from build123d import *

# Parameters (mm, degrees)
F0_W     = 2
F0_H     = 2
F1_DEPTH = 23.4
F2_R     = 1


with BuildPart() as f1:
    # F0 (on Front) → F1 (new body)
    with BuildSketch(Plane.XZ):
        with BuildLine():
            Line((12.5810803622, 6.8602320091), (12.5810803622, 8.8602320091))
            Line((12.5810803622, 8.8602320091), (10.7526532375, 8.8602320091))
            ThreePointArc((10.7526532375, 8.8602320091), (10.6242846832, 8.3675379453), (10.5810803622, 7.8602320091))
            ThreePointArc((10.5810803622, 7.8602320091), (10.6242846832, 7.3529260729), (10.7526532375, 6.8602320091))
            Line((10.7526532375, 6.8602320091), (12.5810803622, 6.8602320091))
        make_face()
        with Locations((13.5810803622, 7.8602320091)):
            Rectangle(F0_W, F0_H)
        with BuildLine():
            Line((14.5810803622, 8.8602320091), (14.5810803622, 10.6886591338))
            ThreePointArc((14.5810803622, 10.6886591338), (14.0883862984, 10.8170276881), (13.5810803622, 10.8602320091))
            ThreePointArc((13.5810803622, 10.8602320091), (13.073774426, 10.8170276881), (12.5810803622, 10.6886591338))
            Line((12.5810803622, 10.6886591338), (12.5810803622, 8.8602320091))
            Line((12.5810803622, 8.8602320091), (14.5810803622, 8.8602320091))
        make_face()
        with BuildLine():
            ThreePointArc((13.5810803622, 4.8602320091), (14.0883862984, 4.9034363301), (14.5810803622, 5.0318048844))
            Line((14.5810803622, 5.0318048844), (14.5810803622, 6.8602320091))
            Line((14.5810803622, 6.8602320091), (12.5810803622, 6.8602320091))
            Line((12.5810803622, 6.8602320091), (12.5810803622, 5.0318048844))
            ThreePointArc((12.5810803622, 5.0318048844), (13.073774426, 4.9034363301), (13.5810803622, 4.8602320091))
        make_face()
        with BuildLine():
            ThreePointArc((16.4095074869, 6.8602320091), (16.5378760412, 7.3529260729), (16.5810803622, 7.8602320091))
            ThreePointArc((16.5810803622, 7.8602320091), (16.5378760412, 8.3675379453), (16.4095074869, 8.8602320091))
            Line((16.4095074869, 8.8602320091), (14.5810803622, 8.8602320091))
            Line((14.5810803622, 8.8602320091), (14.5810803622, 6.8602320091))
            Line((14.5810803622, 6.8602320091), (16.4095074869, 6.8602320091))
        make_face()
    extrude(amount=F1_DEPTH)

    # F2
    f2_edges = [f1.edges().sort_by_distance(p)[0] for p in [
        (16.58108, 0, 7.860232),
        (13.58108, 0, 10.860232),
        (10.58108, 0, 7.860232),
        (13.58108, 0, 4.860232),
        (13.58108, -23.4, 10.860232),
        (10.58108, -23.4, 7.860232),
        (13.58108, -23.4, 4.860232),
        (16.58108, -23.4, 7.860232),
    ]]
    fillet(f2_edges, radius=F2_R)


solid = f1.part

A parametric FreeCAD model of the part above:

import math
import FreeCAD as App
import Part
import Sketcher
Q = App.Units.Quantity


def edges_at(feature, points):
    """Names of the edges that pass closest to the given points."""
    edges = feature.Shape.Edges
    near = lambda p: min(range(len(edges)), key=lambda i: edges[i].distToShape(Part.Vertex(*p))[0])
    return sorted({f"Edge{near(p) + 1}" for p in points})

doc = App.newDocument("Part")
body = doc.addObject("PartDesign::Body", "Body")

sketch1 = body.newObject("Sketcher::SketchObject", "Sketch")
sketch1.AttachmentSupport = (doc.getObject("XZ_Plane"), [""])
sketch1.MapMode = "FlatFace"
sketch1.addGeometry(Part.ArcOfCircle(Part.Circle(App.Vector(13.6, 7.9, 0), App.Vector(0, 0, 1), 3), math.radians(160.53), math.radians(180)), False)
sketch1.addGeometry(Part.ArcOfCircle(Part.Circle(App.Vector(13.6, 7.9, 0), App.Vector(0, 0, 1), 3), math.radians(180), math.radians(199.47)), False)
sketch1.addGeometry(Part.LineSegment(App.Vector(10.8, 6.9, 0), App.Vector(12.6, 6.9, 0)), False)
sketch1.addGeometry(Part.LineSegment(App.Vector(12.6, 6.9, 0), App.Vector(12.6, 5, 0)), False)
sketch1.addGeometry(Part.ArcOfCircle(Part.Circle(App.Vector(13.6, 7.9, 0), App.Vector(0, 0, 1), 3), math.radians(-109.47), math.radians(-90)), False)
sketch1.addGeometry(Part.ArcOfCircle(Part.Circle(App.Vector(13.6, 7.9, 0), App.Vector(0, 0, 1), 3), math.radians(-90), math.radians(-70.53)), False)
sketch1.addGeometry(Part.LineSegment(App.Vector(14.6, 5, 0), App.Vector(14.6, 6.9, 0)), False)
sketch1.addGeometry(Part.LineSegment(App.Vector(14.6, 6.9, 0), App.Vector(16.4, 6.9, 0)), False)
sketch1.addGeometry(Part.ArcOfCircle(Part.Circle(App.Vector(13.6, 7.9, 0), App.Vector(0, 0, 1), 3), math.radians(-19.47), math.radians(0)), False)
sketch1.addGeometry(Part.ArcOfCircle(Part.Circle(App.Vector(13.6, 7.9, 0), App.Vector(0, 0, 1), 3), math.radians(0), math.radians(19.47)), False)
sketch1.addGeometry(Part.LineSegment(App.Vector(16.4, 8.9, 0), App.Vector(14.6, 8.9, 0)), False)
sketch1.addGeometry(Part.LineSegment(App.Vector(14.6, 8.9, 0), App.Vector(14.6, 10.7, 0)), False)
sketch1.addGeometry(Part.ArcOfCircle(Part.Circle(App.Vector(13.6, 7.9, 0), App.Vector(0, 0, 1), 3), math.radians(70.53), math.radians(90)), False)
sketch1.addGeometry(Part.ArcOfCircle(Part.Circle(App.Vector(13.6, 7.9, 0), App.Vector(0, 0, 1), 3), math.radians(90), math.radians(109.47)), False)
sketch1.addGeometry(Part.LineSegment(App.Vector(12.6, 10.7, 0), App.Vector(12.6, 8.9, 0)), False)
sketch1.addGeometry(Part.LineSegment(App.Vector(12.6, 8.9, 0), App.Vector(10.8, 8.9, 0)), False)
sketch1.addConstraint(Sketcher.Constraint("Tangent", 0, 2, 1, 1))
sketch1.addConstraint(Sketcher.Constraint("Coincident", 1, 2, 2, 1))
sketch1.addConstraint(Sketcher.Constraint("Coincident", 2, 2, 3, 1))
sketch1.addConstraint(Sketcher.Constraint("Coincident", 3, 2, 4, 1))
sketch1.addConstraint(Sketcher.Constraint("Tangent", 4, 2, 5, 1))
sketch1.addConstraint(Sketcher.Constraint("Coincident", 5, 2, 6, 1))
sketch1.addConstraint(Sketcher.Constraint("Coincident", 6, 2, 7, 1))
sketch1.addConstraint(Sketcher.Constraint("Coincident", 7, 2, 8, 1))
sketch1.addConstraint(Sketcher.Constraint("Tangent", 8, 2, 9, 1))
sketch1.addConstraint(Sketcher.Constraint("Coincident", 9, 2, 10, 1))
sketch1.addConstraint(Sketcher.Constraint("Coincident", 10, 2, 11, 1))
sketch1.addConstraint(Sketcher.Constraint("Coincident", 11, 2, 12, 1))
sketch1.addConstraint(Sketcher.Constraint("Tangent", 12, 2, 13, 1))
sketch1.addConstraint(Sketcher.Constraint("Coincident", 13, 2, 14, 1))
sketch1.addConstraint(Sketcher.Constraint("Coincident", 14, 2, 15, 1))
sketch1.addConstraint(Sketcher.Constraint("Coincident", 15, 2, 0, 1))
sketch1.addConstraint(Sketcher.Constraint("Horizontal", 2))
sketch1.addConstraint(Sketcher.Constraint("Vertical", 3))
sketch1.addConstraint(Sketcher.Constraint("Vertical", 6))
sketch1.addConstraint(Sketcher.Constraint("Horizontal", 7))
sketch1.addConstraint(Sketcher.Constraint("Horizontal", 10))
sketch1.addConstraint(Sketcher.Constraint("Vertical", 11))
sketch1.addConstraint(Sketcher.Constraint("Vertical", 14))
sketch1.addConstraint(Sketcher.Constraint("Horizontal", 15))
sketch1.addConstraint(Sketcher.Constraint("Coincident", 4, 3, 0, 3))
sketch1.addConstraint(Sketcher.Constraint("Coincident", 8, 3, 0, 3))
sketch1.addConstraint(Sketcher.Constraint("Coincident", 12, 3, 0, 3))
sketch1.addConstraint(Sketcher.Constraint("Equal", 0, 1))
sketch1.addConstraint(Sketcher.Constraint("Equal", 1, 4))
sketch1.addConstraint(Sketcher.Constraint("Equal", 4, 5))
sketch1.addConstraint(Sketcher.Constraint("Equal", 5, 8))
sketch1.addConstraint(Sketcher.Constraint("Equal", 8, 9))
sketch1.addConstraint(Sketcher.Constraint("Equal", 9, 12))
sketch1.addConstraint(Sketcher.Constraint("Equal", 12, 13))
sketch1.addConstraint(Sketcher.Constraint("Horizontal", 13, 3, 0, 2))
sketch1.addConstraint(Sketcher.Constraint("Horizontal", 3, 2, 5, 2))
sketch1.addConstraint(Sketcher.Constraint("Horizontal", 2, 2, 6, 2))
sketch1.addConstraint(Sketcher.Constraint("Horizontal", 0, 2, 8, 2))
sketch1.addConstraint(Sketcher.Constraint("Horizontal", 11, 2, 13, 2))
sketch1.addConstraint(Sketcher.Constraint("Horizontal", 10, 2, 14, 2))
sketch1.addConstraint(Sketcher.Constraint("Vertical", 13, 3, 4, 2))
sketch1.addConstraint(Sketcher.Constraint("Vertical", 7, 2, 9, 2))
sketch1.addConstraint(Sketcher.Constraint("Vertical", 6, 2, 10, 2))
sketch1.addConstraint(Sketcher.Constraint("Vertical", 4, 2, 12, 2))
sketch1.addConstraint(Sketcher.Constraint("Equal", 15, 3))
sketch1.addConstraint(Sketcher.Constraint("Radius", 0, Q("3 mm")))
sketch1.addConstraint(Sketcher.Constraint("DistanceY", 1, 2, 0, 2, Q("1 mm")))
sketch1.addConstraint(Sketcher.Constraint("DistanceX", -1, 1, 0, 3, Q("13.58108 mm")))
sketch1.addConstraint(Sketcher.Constraint("DistanceY", -1, 1, 11, 2, Q("10.688659 mm")))
pad1 = body.newObject("PartDesign::Pad", "Pad")
pad1.Profile = sketch1
pad1.Length = 23.4
doc.recompute()

fillet = body.newObject("PartDesign::Fillet", "Fillet")
fillet.Base = (pad1, edges_at(pad1, [
    (16.538, 0, 7.353),
    (13.074, 0, 10.817),
    (10.624, 0, 8.368),
    (13.074, 0, 4.903),
    (13.074, -23.4, 10.817),
    (10.624, -23.4, 8.368),
    (13.074, -23.4, 4.903),
    (16.538, -23.4, 7.353),
]))
fillet.Radius = 1

doc.recompute()
